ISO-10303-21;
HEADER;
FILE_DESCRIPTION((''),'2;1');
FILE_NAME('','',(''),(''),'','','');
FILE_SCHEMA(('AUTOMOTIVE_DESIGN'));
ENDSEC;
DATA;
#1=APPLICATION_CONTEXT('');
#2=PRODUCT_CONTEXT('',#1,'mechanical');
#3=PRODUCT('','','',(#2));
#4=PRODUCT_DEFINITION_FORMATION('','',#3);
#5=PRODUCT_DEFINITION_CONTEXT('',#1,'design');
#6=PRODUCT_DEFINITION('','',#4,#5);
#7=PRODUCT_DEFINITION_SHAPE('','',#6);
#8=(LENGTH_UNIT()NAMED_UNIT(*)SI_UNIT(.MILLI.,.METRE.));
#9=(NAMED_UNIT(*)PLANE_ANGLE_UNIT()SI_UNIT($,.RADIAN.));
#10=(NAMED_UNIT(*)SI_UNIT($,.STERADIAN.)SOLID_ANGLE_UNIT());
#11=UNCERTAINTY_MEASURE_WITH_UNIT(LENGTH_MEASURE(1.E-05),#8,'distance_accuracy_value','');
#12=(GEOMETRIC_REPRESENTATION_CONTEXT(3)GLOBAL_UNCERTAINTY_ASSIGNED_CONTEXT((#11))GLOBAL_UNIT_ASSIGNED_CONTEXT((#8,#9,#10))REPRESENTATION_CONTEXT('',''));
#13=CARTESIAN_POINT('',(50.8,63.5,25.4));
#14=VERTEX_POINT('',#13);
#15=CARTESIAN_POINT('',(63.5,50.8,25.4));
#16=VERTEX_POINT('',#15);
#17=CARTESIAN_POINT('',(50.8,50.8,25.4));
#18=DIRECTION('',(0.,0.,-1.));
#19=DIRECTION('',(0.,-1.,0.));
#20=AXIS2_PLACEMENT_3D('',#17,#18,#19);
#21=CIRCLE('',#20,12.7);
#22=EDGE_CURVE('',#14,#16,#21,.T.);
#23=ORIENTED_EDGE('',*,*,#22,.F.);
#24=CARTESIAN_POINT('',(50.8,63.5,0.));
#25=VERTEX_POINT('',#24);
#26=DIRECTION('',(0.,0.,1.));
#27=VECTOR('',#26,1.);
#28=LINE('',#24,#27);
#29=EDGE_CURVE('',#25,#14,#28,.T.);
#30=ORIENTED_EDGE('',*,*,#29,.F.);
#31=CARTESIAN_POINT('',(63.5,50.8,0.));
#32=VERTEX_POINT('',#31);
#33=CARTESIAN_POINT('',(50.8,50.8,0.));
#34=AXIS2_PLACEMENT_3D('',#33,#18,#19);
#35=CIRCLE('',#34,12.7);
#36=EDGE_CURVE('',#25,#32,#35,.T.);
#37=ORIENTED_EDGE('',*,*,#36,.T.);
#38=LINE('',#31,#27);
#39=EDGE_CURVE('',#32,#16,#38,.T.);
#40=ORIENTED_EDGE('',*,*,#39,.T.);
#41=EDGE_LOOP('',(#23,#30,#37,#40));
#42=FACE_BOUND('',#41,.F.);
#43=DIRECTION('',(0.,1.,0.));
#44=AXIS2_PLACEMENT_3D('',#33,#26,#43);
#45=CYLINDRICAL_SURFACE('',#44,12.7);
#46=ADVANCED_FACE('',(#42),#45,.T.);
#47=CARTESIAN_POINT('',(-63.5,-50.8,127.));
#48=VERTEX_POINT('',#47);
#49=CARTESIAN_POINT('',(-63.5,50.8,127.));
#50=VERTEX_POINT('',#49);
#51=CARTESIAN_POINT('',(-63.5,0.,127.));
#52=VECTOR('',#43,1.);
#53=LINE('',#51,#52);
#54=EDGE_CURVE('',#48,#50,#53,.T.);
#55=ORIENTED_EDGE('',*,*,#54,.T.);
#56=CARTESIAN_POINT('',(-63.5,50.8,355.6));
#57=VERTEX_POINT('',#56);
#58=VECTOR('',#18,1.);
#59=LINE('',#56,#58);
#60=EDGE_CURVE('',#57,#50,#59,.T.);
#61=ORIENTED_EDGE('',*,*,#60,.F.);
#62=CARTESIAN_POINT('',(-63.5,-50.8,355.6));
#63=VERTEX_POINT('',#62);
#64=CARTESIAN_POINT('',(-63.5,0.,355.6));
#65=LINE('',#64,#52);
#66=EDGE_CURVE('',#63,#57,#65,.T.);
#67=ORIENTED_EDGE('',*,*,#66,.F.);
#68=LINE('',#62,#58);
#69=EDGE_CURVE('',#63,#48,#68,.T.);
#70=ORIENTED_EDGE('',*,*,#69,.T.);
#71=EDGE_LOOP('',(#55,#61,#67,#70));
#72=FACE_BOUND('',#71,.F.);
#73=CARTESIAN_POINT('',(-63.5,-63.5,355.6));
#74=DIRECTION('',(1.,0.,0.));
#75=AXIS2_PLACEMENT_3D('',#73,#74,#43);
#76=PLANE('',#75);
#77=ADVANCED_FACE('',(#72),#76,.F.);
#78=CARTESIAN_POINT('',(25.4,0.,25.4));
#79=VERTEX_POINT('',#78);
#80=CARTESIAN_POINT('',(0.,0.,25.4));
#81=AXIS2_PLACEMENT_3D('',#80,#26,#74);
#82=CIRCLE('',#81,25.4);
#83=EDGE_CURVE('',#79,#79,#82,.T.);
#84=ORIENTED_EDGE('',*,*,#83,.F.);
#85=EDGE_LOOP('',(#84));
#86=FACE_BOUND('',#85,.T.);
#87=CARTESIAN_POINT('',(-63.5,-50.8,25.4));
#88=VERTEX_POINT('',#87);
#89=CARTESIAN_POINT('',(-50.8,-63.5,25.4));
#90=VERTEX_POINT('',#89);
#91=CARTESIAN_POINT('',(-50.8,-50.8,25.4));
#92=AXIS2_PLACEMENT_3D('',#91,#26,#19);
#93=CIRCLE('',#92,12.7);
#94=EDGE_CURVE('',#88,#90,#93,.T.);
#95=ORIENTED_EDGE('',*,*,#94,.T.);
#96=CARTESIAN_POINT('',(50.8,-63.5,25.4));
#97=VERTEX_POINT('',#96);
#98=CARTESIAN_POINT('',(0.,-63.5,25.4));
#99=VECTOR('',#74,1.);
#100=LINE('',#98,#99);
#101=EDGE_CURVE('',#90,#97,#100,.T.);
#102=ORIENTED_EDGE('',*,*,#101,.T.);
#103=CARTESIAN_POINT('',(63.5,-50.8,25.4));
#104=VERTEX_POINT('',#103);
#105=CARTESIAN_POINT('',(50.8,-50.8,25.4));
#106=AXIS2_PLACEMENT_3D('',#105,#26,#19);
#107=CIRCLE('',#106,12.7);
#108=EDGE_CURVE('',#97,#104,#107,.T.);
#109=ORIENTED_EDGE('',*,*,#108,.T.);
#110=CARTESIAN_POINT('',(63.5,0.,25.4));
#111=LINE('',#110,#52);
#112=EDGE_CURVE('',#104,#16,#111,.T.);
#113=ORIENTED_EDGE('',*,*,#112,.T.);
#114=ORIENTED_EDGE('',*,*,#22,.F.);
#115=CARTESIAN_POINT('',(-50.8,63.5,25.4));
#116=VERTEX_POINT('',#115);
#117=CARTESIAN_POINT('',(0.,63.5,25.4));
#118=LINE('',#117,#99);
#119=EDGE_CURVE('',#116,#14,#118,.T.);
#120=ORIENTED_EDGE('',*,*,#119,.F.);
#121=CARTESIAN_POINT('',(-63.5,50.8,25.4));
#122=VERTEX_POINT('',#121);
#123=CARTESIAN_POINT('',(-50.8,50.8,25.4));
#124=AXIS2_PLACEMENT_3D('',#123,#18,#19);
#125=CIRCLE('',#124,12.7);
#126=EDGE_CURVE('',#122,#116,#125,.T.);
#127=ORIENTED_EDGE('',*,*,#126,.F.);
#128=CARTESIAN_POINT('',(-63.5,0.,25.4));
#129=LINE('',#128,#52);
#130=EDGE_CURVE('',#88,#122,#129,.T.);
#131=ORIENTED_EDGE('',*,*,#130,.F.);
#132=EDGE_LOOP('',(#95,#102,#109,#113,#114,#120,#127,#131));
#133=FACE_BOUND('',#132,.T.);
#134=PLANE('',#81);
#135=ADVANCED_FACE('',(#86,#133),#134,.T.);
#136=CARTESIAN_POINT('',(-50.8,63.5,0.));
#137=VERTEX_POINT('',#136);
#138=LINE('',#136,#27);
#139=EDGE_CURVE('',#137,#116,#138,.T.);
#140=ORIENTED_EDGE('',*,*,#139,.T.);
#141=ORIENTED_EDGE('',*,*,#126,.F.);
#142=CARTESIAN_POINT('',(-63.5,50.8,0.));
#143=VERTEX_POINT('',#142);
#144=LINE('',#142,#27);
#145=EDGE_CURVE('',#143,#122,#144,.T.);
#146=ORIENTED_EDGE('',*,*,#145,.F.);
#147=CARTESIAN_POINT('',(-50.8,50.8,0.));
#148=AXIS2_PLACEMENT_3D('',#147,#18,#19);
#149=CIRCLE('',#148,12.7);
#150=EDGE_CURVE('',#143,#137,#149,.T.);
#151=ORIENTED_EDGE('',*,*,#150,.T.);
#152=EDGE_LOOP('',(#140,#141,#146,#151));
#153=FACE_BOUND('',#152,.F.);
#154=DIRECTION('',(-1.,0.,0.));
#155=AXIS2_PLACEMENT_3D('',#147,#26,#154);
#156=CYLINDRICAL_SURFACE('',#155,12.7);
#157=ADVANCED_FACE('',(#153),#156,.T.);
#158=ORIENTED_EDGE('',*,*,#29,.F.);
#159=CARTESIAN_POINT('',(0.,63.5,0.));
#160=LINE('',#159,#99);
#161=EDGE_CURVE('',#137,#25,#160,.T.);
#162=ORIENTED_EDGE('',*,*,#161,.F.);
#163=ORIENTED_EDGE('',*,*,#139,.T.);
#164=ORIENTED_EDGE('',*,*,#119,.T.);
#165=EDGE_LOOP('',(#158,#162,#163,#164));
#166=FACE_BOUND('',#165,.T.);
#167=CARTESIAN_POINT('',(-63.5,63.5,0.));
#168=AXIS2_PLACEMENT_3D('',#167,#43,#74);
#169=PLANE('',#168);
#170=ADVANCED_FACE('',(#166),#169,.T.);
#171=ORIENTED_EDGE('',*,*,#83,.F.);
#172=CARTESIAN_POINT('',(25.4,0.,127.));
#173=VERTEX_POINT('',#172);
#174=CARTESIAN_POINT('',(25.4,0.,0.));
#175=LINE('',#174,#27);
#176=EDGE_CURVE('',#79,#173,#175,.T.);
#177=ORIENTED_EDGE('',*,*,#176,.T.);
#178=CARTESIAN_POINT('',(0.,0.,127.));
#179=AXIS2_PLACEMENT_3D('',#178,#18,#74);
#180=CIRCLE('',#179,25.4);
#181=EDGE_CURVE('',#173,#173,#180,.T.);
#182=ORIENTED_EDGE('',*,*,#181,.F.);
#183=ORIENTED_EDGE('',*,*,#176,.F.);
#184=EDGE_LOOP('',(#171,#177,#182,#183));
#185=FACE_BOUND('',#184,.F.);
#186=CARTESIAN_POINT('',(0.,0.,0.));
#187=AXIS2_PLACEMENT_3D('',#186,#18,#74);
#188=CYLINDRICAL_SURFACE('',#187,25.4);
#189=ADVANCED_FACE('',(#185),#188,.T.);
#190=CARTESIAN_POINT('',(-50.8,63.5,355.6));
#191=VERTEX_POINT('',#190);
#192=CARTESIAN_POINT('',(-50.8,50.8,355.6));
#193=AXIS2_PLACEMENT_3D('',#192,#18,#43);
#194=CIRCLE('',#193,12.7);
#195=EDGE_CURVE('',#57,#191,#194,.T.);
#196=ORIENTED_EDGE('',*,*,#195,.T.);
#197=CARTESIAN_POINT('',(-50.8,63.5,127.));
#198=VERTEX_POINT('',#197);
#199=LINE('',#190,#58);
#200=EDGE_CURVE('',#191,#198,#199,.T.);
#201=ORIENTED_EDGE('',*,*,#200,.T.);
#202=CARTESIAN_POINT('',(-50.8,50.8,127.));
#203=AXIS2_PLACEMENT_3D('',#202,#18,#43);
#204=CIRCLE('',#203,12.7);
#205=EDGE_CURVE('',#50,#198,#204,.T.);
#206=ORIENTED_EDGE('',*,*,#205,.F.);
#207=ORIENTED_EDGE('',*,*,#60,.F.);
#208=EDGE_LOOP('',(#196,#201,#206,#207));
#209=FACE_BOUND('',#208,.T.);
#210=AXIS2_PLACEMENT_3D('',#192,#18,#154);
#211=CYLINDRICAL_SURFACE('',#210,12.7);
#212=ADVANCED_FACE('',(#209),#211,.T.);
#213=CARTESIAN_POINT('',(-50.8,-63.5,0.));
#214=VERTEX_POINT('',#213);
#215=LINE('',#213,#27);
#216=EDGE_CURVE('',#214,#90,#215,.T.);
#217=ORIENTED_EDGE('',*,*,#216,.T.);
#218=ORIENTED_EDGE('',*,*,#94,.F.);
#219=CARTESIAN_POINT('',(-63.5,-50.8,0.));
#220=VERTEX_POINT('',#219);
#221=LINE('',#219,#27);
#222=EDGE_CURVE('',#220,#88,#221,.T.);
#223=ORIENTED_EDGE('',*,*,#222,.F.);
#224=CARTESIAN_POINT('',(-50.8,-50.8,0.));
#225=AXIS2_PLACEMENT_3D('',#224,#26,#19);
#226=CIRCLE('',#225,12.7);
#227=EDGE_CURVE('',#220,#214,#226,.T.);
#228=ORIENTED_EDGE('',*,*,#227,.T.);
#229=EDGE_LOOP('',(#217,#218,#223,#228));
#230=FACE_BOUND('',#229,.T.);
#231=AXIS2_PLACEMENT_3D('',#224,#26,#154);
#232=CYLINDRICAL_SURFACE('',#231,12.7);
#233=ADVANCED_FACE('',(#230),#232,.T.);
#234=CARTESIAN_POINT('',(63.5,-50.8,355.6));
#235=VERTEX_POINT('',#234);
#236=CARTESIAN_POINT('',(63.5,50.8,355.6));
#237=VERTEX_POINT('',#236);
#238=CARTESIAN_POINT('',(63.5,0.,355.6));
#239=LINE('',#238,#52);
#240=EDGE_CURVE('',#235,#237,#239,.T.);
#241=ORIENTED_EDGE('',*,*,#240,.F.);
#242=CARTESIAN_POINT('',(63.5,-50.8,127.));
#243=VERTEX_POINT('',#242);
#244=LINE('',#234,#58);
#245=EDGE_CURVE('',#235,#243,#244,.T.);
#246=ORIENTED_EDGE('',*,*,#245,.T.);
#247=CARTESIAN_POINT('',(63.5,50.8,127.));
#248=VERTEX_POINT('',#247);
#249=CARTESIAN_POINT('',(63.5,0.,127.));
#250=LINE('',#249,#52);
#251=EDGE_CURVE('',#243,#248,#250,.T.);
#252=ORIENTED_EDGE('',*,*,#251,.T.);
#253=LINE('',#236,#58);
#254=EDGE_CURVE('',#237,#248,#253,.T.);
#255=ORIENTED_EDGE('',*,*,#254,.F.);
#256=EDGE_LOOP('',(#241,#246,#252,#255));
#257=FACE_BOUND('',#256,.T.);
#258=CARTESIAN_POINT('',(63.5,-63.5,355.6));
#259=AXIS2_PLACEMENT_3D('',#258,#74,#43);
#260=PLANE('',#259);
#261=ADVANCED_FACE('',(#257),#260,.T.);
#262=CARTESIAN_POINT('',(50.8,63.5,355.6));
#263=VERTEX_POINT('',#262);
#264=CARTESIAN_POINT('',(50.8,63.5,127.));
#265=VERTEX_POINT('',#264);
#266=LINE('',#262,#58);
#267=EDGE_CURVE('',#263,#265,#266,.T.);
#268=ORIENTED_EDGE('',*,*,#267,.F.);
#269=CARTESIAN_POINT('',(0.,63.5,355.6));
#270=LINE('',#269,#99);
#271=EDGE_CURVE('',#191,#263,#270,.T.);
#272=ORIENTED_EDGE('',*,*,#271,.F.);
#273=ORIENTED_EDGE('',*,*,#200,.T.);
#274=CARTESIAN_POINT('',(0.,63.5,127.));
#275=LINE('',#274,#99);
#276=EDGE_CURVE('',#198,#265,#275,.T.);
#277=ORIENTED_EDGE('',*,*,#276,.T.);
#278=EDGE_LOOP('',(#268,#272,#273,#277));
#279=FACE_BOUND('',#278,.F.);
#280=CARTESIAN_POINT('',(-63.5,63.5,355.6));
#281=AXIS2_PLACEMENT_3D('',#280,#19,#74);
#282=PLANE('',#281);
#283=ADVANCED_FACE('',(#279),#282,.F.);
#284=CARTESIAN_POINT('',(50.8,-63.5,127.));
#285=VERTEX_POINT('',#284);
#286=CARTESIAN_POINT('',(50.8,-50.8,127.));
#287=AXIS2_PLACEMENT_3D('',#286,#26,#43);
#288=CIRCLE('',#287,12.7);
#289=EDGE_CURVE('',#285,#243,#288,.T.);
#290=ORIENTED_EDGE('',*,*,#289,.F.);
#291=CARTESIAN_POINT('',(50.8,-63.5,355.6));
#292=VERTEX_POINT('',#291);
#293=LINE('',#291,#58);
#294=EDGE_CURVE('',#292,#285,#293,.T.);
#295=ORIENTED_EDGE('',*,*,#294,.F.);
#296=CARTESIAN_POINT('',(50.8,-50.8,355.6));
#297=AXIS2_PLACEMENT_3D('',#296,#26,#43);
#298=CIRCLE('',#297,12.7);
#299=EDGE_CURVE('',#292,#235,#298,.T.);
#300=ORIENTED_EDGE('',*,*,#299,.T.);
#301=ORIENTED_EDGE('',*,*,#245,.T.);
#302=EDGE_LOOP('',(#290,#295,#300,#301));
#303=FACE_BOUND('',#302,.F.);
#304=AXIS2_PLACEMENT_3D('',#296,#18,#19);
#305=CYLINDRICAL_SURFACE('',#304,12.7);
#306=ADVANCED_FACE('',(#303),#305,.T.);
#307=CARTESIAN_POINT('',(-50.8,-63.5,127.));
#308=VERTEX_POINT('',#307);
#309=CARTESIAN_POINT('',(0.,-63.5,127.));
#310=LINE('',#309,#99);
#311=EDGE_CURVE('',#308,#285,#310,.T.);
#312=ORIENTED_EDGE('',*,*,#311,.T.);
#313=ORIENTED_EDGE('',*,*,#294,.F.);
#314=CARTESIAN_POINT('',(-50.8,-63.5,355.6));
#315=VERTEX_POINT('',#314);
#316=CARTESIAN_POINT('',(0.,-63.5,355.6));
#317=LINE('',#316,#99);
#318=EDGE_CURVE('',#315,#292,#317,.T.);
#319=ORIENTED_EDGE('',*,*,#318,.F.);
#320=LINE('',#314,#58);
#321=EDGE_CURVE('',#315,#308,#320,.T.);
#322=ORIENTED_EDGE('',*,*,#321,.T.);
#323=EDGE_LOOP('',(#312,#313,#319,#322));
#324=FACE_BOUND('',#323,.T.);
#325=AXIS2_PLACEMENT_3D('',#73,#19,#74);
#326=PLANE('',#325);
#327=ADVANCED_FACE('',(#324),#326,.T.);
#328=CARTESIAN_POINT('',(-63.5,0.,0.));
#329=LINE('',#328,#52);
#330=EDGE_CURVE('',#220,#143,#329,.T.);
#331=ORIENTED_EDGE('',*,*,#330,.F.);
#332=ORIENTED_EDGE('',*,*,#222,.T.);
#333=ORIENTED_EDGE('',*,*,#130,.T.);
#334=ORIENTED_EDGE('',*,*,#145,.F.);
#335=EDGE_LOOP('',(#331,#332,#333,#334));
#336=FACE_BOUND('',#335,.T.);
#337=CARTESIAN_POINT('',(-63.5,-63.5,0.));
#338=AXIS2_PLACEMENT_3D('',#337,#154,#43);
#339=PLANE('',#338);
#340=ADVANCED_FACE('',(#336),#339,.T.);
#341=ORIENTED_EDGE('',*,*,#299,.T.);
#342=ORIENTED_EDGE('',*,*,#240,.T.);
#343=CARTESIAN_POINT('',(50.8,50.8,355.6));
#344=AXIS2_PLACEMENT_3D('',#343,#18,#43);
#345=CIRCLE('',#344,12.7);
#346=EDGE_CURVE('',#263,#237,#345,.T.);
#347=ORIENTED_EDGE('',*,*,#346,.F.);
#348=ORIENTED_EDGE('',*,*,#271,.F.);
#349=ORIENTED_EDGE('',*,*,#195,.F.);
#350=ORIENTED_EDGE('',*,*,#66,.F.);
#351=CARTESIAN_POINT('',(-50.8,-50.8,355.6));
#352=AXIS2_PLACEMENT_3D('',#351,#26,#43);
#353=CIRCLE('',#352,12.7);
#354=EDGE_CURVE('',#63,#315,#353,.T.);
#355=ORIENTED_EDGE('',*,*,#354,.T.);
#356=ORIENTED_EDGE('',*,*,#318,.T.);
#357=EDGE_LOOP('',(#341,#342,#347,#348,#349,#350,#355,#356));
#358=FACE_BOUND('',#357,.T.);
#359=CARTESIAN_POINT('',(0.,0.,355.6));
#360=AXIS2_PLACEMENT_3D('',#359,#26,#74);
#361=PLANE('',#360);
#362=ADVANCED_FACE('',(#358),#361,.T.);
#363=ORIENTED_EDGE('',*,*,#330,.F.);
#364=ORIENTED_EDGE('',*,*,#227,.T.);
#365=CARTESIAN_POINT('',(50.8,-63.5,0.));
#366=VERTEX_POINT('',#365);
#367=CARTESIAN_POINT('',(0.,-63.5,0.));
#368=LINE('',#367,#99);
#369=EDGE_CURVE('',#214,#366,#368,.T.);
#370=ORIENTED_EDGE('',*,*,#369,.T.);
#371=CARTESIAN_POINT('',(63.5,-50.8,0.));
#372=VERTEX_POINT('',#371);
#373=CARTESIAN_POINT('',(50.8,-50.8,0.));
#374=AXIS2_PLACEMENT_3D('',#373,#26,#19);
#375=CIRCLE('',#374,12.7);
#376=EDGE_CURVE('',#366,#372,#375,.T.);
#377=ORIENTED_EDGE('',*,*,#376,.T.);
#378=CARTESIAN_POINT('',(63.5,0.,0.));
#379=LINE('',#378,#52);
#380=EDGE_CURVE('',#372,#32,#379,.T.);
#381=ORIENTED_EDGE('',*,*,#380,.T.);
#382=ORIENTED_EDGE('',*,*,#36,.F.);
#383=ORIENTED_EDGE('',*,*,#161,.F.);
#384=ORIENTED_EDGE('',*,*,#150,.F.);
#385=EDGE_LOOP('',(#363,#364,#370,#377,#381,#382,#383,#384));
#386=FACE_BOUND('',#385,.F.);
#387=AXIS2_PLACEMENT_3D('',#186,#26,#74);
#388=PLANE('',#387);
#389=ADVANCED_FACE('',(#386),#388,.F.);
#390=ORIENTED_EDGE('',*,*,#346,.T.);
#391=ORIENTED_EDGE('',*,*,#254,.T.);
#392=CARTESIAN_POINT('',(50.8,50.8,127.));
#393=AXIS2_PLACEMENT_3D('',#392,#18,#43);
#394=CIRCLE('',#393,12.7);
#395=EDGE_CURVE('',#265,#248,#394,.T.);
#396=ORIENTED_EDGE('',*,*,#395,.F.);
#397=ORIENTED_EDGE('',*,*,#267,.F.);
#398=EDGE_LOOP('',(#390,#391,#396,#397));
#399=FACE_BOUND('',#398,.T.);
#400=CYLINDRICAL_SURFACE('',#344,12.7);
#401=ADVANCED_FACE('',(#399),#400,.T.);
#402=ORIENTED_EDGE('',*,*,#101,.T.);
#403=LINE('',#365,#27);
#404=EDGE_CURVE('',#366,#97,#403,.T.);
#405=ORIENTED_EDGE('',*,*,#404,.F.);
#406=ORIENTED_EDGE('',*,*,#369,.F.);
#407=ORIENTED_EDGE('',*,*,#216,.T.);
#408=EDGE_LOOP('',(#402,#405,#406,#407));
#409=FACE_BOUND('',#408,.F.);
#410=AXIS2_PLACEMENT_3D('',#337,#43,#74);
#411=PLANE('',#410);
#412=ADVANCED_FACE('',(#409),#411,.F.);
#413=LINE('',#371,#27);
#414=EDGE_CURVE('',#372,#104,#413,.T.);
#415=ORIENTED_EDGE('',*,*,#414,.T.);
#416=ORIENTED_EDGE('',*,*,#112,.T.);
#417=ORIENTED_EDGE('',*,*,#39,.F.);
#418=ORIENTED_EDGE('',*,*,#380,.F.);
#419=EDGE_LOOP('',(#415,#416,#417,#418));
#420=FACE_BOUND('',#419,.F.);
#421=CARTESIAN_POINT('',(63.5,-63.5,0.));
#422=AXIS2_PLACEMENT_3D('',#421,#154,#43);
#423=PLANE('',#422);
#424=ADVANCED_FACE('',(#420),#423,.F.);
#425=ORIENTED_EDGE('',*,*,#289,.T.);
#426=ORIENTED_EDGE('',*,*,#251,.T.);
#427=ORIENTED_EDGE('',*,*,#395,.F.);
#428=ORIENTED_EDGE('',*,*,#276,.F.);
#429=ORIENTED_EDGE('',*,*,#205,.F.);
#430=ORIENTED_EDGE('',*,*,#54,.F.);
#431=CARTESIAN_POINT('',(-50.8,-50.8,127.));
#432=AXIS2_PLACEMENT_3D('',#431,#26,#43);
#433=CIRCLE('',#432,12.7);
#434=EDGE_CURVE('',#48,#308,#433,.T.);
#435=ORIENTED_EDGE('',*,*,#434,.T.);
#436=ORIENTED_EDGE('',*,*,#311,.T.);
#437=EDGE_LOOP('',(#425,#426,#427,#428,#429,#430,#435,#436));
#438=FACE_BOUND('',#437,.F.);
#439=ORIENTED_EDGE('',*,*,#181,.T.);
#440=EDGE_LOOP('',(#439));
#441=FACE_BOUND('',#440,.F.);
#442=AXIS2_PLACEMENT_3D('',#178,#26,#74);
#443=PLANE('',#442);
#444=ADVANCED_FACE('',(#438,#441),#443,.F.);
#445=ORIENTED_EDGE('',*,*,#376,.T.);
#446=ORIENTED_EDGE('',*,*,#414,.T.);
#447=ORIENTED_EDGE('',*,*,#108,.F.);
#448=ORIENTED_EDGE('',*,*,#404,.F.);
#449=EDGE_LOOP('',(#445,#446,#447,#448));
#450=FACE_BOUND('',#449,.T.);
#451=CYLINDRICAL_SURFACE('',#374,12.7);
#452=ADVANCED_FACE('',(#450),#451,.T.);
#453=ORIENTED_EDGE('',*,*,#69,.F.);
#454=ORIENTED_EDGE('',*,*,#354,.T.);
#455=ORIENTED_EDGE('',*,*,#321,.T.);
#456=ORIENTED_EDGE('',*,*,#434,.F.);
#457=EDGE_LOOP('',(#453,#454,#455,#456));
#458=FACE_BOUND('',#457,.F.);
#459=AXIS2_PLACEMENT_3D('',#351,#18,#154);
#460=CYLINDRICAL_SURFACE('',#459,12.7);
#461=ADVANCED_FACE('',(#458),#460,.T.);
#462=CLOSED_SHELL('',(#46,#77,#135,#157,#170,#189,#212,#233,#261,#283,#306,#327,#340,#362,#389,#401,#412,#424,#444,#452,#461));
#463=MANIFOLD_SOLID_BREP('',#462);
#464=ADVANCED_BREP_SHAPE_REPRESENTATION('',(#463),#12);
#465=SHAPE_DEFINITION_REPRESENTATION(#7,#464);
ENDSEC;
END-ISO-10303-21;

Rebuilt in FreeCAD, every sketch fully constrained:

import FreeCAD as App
import Part
import Sketcher
Q = App.Units.Quantity


def edges_at(feature, points):
    """Names of the edges that pass closest to the given points."""
    edges = feature.Shape.Edges
    near = lambda p: min(range(len(edges)), key=lambda i: edges[i].distToShape(Part.Vertex(*p))[0])
    return sorted({f"Edge{near(p) + 1}" for p in points})

doc = App.newDocument("Part")
params = doc.addObject("Spreadsheet::Sheet", "Params")
for row, (alias, value) in enumerate([
    ("sketch1_diameter", "2 in"),
    ("sketch1_width", "5 in"),
    ("pad1_length", "1 in"),
    ("sketch2_diameter", "2 in"),
    ("pad2_length", "14 in"),
    ("sketch3_width", "5 in"),
    ("pad3_length", "9 in"),
    ("fillet_radius", "0.5 in"),
], start=1):
    params.set(f"A{row}", alias)
    params.set(f"B{row}", "=" + value)
    params.setAlias(f"B{row}", alias)

body = doc.addObject("PartDesign::Body", "Body")

# Sketch on XY plane
sketch1 = doc.addObject("Sketcher::SketchObject", "Sketch")
body.addObject(sketch1)
sketch1.AttachmentSupport = (doc.XY_Plane, [""])
sketch1.MapMode = "FlatFace"
sketch1.addGeometry([
    Part.LineSegment(App.Vector(-64, 64, 0), App.Vector(-64, -64, 0)),  # 0
    Part.LineSegment(App.Vector(-64, -64, 0), App.Vector(64, -64, 0)),  # 1
    Part.LineSegment(App.Vector(64, -64, 0), App.Vector(64, 64, 0)),  # 2
    Part.LineSegment(App.Vector(64, 64, 0), App.Vector(-64, 64, 0)),  # 3
    Part.Circle(App.Vector(0, 0, 0), App.Vector(0, 0, 1), 25),  # 4
], False)
sketch1.addConstraint([
    Sketcher.Constraint("Coincident", 0, 2, 1, 1),
    Sketcher.Constraint("Coincident", 1, 2, 2, 1),
    Sketcher.Constraint("Coincident", 2, 2, 3, 1),
    Sketcher.Constraint("Coincident", 3, 2, 0, 1),
    Sketcher.Constraint("Vertical", 0),
    Sketcher.Constraint("Horizontal", 1),
    Sketcher.Constraint("Vertical", 2),
    Sketcher.Constraint("Horizontal", 3),
    Sketcher.Constraint("Coincident", 4, 3, -1, 1),
    Sketcher.Constraint("Symmetric", 0, 2, 2, 2, -1, 1),
    Sketcher.Constraint("Equal", 3, 0),
    Sketcher.Constraint("Diameter", 4, Q("2 in")),
    Sketcher.Constraint("DistanceX", 1, 1, 1, 2, Q("5 in")),
])
sketch1.setExpression("Constraints[11]", "Params.sketch1_diameter")
sketch1.setExpression("Constraints[12]", "Params.sketch1_width")
pad1 = doc.addObject("PartDesign::Pad", "Pad")
body.addObject(pad1)
pad1.Profile = sketch1
pad1.setExpression("Length", "Params.pad1_length")

# Sketch on XY plane
sketch2 = doc.addObject("Sketcher::SketchObject", "Sketch001")
body.addObject(sketch2)
sketch2.AttachmentSupport = (doc.XY_Plane, [""])
sketch2.MapMode = "FlatFace"
sketch2.addGeometry(Part.Circle(App.Vector(0, 0, 0), App.Vector(0, 0, 1), 25), False)
sketch2.addConstraint([
    Sketcher.Constraint("Coincident", 0, 3, -1, 1),
    Sketcher.Constraint("Diameter", 0, Q("2 in")),
])
sketch2.setExpression("Constraints[1]", "Params.sketch2_diameter")
pad2 = doc.addObject("PartDesign::Pad", "Pad001")
body.addObject(pad2)
pad2.Profile = sketch2
pad2.setExpression("Length", "Params.pad2_length")

# Sketch on XY plane
sketch3 = doc.addObject("Sketcher::SketchObject", "Sketch002")
body.addObject(sketch3)
sketch3.AttachmentSupport = (doc.XY_Plane, [""])
sketch3.MapMode = "FlatFace"
sketch3.AttachmentOffset = App.Placement(App.Vector(0, 0, 14 * 25.4), App.Rotation())
sketch3.addGeometry([
    Part.LineSegment(App.Vector(-64, 64, 0), App.Vector(-64, -64, 0)),
    Part.LineSegment(App.Vector(-64, -64, 0), App.Vector(64, -64, 0)),
    Part.LineSegment(App.Vector(64, -64, 0), App.Vector(64, 64, 0)),
    Part.LineSegment(App.Vector(64, 64, 0), App.Vector(-64, 64, 0)),
], False)
sketch3.addConstraint([
    Sketcher.Constraint("Coincident", 0, 2, 1, 1),
    Sketcher.Constraint("Coincident", 1, 2, 2, 1),
    Sketcher.Constraint("Coincident", 2, 2, 3, 1),
    Sketcher.Constraint("Coincident", 3, 2, 0, 1),
    Sketcher.Constraint("Vertical", 0),
    Sketcher.Constraint("Horizontal", 1),
    Sketcher.Constraint("Vertical", 2),
    Sketcher.Constraint("Horizontal", 3),
    Sketcher.Constraint("Symmetric", 0, 2, 2, 2, -1, 1),
    Sketcher.Constraint("Equal", 3, 0),
    Sketcher.Constraint("DistanceX", 1, 1, 1, 2, Q("5 in")),
])
sketch3.setExpression("Constraints[10]", "Params.sketch3_width")
pad3 = doc.addObject("PartDesign::Pad", "Pad002")
body.addObject(pad3)
pad3.Profile = sketch3
pad3.setExpression("Length", "Params.pad3_length")
pad3.Reversed = True
doc.recompute()

fillet = doc.addObject("PartDesign::Fillet", "Fillet")
body.addObject(fillet)
fillet.Base = (pad3, edges_at(pad3, [
    (63.5, -63.5, 241.3),
    (63.5, 63.5, 241.3),
    (-63.5, -63.5, 241.3),
    (63.5, -63.5, 12.7),
    (63.5, 63.5, 12.7),
    (-63.5, -63.5, 12.7),
    (-63.5, 63.5, 241.3),
    (-63.5, 63.5, 12.7),
]))
fillet.setExpression("Radius", "Params.fillet_radius")

doc.recompute()
